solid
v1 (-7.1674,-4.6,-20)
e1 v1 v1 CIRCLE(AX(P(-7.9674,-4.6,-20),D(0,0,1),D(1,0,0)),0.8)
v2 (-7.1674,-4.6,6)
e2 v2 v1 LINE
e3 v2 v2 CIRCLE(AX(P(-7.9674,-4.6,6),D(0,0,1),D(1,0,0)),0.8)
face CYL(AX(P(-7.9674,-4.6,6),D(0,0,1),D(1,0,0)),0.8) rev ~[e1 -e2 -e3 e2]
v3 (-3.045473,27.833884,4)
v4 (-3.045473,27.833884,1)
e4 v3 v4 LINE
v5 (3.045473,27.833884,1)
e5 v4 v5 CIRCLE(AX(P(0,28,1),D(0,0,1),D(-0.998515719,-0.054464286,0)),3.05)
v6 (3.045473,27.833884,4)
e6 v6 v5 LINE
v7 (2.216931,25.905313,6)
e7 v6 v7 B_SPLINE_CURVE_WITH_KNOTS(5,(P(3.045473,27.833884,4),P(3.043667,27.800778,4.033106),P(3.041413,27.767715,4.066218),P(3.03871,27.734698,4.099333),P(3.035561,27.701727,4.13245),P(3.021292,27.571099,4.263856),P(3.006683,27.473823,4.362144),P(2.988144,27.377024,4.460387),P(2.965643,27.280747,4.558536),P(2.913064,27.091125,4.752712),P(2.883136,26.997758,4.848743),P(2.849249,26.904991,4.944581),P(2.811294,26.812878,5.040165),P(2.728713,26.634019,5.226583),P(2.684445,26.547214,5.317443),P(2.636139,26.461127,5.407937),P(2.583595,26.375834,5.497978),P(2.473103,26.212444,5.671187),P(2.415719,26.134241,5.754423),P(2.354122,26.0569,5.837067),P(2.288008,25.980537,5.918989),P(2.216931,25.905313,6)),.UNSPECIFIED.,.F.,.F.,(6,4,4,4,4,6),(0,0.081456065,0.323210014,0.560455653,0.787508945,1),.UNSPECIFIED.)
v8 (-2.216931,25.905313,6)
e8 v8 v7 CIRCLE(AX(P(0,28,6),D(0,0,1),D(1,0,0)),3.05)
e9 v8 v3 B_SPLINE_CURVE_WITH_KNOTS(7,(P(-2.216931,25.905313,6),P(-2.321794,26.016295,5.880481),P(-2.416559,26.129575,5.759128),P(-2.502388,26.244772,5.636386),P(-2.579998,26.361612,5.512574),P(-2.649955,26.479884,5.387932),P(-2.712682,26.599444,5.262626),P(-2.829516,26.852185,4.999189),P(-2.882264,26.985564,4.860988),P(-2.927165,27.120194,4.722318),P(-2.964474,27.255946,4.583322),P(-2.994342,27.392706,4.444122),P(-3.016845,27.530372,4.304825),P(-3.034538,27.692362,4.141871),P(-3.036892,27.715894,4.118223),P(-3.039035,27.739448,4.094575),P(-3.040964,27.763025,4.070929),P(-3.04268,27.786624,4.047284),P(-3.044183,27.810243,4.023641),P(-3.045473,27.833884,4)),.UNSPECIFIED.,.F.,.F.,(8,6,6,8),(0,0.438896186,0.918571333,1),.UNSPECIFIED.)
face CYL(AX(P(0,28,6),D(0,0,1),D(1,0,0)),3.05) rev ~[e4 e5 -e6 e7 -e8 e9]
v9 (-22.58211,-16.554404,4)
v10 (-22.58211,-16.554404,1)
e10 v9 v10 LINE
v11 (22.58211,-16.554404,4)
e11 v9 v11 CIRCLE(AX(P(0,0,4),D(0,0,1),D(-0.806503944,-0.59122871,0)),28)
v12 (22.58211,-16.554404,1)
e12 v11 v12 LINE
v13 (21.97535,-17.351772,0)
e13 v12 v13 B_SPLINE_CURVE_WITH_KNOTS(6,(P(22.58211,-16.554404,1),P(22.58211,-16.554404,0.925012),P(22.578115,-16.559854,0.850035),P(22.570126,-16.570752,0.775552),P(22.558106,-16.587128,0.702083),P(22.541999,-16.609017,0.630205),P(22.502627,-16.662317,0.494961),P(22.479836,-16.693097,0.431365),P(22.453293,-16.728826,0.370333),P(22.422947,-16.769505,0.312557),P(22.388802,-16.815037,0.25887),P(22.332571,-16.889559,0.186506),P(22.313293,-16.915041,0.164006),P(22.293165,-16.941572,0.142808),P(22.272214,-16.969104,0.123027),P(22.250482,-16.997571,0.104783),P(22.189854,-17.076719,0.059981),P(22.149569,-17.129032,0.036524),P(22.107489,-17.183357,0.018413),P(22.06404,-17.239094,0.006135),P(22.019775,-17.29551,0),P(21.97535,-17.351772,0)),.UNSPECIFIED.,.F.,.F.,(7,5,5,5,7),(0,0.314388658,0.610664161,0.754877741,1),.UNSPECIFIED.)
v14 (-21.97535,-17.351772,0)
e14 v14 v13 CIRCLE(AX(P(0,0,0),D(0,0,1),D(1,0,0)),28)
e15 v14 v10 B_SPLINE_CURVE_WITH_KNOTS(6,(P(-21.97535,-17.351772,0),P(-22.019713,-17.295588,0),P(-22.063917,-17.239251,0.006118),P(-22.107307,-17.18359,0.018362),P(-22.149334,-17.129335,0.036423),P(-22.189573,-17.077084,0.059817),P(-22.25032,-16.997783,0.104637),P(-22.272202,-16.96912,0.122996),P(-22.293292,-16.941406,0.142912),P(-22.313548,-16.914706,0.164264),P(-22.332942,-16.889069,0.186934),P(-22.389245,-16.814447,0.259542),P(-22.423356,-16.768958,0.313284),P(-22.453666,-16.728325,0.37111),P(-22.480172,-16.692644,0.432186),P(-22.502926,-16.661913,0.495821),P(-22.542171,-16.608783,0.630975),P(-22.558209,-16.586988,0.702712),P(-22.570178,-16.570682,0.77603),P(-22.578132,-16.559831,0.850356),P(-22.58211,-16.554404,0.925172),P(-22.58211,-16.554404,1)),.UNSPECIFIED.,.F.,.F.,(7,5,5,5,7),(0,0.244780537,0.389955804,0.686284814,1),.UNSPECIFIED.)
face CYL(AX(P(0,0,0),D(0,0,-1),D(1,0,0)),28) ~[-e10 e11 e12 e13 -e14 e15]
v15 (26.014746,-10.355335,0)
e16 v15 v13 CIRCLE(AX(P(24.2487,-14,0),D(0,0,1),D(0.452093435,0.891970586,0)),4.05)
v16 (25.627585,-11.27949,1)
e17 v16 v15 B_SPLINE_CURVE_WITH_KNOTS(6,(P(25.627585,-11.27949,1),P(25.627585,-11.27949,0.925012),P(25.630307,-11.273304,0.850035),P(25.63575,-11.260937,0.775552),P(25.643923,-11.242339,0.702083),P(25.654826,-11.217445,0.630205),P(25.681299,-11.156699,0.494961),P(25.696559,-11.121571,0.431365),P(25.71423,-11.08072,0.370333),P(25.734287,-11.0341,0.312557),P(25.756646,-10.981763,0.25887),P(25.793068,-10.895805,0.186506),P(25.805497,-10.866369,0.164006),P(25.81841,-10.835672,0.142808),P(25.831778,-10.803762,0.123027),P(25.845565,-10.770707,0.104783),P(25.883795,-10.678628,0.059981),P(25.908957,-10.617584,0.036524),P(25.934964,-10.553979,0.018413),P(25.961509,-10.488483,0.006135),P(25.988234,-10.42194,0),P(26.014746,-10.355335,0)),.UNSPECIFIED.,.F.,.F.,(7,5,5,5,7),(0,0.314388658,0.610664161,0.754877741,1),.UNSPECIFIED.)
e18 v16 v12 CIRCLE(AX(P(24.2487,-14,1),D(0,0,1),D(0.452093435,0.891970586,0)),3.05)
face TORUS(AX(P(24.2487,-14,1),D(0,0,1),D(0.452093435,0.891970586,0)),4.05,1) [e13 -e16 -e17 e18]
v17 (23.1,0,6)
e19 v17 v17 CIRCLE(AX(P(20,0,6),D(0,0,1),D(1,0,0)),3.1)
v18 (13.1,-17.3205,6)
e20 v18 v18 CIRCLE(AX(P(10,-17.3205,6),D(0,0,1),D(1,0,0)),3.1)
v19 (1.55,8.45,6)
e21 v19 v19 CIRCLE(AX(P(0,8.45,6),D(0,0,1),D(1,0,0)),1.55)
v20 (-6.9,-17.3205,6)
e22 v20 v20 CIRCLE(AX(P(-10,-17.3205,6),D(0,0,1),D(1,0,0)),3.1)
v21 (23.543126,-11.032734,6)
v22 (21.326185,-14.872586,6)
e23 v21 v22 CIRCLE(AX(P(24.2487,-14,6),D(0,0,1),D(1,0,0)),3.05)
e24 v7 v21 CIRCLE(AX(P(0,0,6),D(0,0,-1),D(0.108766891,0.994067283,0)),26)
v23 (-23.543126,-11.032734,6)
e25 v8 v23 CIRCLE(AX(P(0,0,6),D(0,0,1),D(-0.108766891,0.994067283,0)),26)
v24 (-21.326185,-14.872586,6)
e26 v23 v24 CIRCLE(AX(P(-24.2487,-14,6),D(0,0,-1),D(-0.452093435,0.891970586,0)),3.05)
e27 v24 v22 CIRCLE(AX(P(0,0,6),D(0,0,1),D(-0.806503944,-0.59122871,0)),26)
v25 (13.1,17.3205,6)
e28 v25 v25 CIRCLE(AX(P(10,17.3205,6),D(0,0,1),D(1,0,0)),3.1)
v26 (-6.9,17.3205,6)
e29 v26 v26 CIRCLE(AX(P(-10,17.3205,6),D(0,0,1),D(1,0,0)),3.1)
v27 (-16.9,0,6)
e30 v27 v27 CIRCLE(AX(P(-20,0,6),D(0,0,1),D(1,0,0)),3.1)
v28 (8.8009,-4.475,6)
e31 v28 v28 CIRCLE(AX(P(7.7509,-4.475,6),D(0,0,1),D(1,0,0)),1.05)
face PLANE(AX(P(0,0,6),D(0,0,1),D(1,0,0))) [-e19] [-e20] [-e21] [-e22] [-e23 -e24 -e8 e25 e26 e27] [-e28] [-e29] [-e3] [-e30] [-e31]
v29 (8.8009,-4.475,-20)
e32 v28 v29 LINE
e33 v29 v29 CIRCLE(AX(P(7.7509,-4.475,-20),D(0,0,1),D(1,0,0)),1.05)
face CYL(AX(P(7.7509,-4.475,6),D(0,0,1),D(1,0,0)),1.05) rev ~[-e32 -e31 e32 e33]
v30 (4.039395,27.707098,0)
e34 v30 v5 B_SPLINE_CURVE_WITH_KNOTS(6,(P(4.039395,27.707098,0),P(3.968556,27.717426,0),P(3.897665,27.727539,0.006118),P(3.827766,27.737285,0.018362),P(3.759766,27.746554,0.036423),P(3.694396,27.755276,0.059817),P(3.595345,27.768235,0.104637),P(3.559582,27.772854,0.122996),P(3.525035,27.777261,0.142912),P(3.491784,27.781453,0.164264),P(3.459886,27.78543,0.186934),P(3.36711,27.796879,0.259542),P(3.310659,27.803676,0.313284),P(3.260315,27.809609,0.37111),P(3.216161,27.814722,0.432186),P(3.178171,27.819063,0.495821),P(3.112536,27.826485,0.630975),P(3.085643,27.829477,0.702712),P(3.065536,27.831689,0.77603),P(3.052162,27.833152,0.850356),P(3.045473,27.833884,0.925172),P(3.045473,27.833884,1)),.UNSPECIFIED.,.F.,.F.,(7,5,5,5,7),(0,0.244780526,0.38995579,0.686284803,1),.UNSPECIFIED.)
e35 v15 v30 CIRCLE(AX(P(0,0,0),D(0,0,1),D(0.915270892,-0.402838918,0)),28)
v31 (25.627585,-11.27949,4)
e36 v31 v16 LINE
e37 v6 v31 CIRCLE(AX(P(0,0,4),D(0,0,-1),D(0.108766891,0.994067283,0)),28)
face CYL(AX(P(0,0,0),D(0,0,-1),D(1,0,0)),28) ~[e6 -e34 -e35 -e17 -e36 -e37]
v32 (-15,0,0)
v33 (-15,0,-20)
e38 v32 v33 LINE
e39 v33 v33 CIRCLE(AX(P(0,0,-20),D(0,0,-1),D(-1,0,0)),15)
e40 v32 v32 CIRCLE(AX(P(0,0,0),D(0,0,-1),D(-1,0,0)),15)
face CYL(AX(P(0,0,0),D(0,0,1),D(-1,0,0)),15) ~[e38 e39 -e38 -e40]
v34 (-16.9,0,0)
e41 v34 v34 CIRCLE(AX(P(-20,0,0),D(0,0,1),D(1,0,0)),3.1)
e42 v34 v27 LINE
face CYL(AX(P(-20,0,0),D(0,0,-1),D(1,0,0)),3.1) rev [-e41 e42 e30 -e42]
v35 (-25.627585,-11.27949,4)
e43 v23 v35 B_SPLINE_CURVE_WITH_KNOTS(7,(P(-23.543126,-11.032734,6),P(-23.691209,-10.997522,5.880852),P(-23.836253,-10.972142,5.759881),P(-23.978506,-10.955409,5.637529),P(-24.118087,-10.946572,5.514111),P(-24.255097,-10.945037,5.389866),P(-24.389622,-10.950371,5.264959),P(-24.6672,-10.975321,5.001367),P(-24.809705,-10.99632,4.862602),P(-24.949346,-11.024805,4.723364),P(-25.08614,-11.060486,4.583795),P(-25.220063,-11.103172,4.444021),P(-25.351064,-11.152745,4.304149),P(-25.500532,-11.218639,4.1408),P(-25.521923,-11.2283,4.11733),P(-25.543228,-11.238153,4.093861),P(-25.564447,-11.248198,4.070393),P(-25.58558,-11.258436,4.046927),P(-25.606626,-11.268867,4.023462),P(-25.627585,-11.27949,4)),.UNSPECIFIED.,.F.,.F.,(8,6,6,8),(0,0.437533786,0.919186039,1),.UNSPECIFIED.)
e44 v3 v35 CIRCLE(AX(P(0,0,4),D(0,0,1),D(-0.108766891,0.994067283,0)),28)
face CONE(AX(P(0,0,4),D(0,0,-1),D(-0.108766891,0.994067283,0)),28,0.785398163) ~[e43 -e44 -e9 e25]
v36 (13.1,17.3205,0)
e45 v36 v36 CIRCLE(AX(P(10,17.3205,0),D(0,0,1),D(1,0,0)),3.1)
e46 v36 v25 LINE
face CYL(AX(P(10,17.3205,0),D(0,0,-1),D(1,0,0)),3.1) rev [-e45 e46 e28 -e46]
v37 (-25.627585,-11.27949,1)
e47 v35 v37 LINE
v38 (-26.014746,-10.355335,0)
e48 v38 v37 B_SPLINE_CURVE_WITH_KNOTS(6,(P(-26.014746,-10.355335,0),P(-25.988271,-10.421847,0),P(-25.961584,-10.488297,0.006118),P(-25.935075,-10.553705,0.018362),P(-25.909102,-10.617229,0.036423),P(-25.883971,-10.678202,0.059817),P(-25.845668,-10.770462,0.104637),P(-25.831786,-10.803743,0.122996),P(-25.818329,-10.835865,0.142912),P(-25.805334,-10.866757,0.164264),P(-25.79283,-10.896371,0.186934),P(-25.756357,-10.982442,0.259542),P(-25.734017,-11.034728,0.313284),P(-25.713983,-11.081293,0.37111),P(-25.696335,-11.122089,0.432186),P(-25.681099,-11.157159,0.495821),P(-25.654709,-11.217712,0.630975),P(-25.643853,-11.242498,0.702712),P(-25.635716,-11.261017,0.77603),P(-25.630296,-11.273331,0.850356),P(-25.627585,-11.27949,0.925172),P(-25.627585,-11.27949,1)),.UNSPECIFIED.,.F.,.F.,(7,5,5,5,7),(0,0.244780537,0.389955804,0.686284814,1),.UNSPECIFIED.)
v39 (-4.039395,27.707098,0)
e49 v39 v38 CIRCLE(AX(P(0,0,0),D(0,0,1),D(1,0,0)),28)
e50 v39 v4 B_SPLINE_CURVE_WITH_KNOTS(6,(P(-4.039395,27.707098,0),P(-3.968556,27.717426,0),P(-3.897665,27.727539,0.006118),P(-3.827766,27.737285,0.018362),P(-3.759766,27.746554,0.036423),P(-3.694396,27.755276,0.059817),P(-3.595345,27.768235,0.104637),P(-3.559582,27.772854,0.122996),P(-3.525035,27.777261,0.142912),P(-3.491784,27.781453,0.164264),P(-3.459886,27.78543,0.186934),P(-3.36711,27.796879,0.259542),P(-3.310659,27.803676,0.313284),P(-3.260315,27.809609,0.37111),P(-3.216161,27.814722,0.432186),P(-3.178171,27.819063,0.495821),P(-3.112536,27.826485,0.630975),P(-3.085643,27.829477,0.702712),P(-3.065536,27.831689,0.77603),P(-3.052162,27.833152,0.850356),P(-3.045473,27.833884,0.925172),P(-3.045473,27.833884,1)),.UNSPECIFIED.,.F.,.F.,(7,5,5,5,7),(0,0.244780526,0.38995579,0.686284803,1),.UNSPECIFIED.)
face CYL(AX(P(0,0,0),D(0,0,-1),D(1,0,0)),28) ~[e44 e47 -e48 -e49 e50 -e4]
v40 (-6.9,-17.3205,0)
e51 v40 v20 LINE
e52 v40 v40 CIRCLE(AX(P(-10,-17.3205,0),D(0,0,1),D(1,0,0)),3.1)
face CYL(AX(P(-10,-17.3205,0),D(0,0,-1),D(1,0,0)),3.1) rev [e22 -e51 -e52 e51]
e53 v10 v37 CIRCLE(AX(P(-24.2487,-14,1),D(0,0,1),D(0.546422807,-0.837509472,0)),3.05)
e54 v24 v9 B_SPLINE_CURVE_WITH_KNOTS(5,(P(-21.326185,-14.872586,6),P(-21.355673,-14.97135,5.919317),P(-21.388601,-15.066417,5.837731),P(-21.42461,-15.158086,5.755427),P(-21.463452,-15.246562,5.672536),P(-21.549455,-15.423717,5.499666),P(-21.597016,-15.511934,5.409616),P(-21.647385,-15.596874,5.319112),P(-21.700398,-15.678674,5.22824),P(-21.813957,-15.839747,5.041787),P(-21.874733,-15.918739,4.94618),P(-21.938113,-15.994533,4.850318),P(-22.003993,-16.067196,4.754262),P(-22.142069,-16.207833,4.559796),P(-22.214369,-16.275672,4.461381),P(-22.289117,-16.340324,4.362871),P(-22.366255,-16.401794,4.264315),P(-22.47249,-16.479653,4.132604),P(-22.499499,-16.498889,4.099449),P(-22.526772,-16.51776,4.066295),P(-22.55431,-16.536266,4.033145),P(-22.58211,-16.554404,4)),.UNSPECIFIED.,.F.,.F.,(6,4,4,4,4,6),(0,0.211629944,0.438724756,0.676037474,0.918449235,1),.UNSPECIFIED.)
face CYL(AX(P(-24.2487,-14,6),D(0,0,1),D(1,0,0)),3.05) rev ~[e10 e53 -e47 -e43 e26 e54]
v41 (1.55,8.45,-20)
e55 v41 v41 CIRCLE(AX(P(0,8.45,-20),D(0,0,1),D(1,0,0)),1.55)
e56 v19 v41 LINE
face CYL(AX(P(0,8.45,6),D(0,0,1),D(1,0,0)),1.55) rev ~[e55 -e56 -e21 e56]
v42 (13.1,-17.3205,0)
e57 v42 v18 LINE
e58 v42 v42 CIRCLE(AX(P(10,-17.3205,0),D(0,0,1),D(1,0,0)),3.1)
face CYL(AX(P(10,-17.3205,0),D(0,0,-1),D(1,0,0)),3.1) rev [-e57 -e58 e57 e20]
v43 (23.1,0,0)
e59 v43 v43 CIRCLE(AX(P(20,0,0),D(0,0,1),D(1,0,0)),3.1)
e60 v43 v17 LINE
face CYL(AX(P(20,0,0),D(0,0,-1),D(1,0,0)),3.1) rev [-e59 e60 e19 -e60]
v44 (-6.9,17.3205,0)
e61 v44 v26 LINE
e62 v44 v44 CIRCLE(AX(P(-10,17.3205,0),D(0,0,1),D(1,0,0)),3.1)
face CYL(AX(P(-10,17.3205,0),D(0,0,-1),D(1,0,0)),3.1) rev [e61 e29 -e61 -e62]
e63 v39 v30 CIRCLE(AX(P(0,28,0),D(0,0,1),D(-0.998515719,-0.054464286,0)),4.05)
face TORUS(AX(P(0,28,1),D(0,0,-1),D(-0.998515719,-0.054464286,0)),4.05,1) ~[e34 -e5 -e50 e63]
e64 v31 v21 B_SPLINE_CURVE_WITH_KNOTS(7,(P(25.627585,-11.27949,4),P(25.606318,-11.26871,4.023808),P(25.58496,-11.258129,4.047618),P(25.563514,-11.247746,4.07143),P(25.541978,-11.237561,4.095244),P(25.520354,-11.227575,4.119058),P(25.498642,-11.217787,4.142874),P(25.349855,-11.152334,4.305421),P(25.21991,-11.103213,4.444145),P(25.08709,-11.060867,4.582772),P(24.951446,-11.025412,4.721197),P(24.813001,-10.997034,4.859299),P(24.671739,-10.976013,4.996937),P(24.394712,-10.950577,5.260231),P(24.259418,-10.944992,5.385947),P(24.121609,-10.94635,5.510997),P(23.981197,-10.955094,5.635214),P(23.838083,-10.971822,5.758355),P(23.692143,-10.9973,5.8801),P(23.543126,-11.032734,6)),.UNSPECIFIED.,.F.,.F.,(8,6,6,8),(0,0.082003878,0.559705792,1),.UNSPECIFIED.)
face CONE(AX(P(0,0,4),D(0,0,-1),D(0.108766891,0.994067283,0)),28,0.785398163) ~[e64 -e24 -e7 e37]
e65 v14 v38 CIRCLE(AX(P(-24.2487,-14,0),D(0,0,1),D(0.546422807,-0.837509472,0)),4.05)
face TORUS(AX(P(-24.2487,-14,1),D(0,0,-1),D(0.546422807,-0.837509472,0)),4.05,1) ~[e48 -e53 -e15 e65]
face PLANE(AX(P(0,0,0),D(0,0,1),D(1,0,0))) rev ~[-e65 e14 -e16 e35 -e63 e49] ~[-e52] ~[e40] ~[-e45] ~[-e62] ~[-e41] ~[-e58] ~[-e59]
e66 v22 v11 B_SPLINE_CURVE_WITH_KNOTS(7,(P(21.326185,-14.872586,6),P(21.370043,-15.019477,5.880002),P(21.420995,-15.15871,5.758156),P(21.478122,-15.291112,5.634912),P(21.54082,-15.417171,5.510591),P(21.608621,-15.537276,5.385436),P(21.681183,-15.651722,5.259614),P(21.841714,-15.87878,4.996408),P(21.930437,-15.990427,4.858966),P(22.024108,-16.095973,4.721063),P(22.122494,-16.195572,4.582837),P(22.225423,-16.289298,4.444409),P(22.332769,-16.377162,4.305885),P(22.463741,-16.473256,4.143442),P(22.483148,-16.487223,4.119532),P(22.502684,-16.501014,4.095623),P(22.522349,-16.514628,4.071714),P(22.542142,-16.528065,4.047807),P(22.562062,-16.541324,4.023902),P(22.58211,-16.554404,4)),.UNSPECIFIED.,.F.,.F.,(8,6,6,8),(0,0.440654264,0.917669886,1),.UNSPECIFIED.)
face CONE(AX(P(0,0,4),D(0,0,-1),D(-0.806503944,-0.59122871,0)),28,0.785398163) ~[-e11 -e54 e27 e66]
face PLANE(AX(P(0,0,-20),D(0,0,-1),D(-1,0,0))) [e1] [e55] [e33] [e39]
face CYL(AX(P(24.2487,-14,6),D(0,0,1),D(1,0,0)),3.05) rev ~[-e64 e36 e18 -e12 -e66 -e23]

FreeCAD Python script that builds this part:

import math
import FreeCAD as App
import Part
import Sketcher
from FreeCAD import Vector
Q = App.Units.Quantity


def edges_at(feature, points):
    """Names of the edges that pass closest to the given points."""
    edges = feature.Shape.Edges
    near = lambda p: min(range(len(edges)), key=lambda i: edges[i].distToShape(Part.Vertex(*p))[0])
    return sorted({f"Edge{near(p) + 1}" for p in points})

doc = App.newDocument("Part")
params = doc.addObject("Spreadsheet::Sheet", "Params")
for row, (alias, value) in enumerate([
    ("sketch1_diameter", "56 mm"),
    ("sketch1_diameter2", "6.2 mm"),
    ("pad1_length", "6 mm"),
    ("sketch2_diameter", "30 mm"),
    ("pad2_length", "20 mm"),
    ("sketch3_diameter", "3.1 mm"),
    ("sketch3_diameter2", "2.1 mm"),
    ("sketch3_diameter3", "1.6 mm"),
    ("sketch3_radius", "3.05 mm"),
    ("sketch3_radius2", "28 mm"),
    ("chamfer_size", "2 mm"),
    ("fillet_radius", "1 mm"),
], start=1):
    params.set(f"A{row}", alias)
    params.set(f"B{row}", "=" + value)
    params.setAlias(f"B{row}", alias)

body = doc.addObject("PartDesign::Body", "Body")

# Sketch on XY plane
sketch1 = body.newObject("Sketcher::SketchObject", "Sketch")
sketch1.AttachmentSupport = (doc.getObject("XY_Plane"), [""])
sketch1.MapMode = "FlatFace"
sketch1.addGeometry([
    Part.Circle(Vector(0, 0, 0), Vector(0, 0, 1), 28),  # 0
    Part.Circle(Vector(-10, -17.3205, 0), Vector(0, 0, 1), 3.1),  # 1
    Part.Circle(Vector(10, -17.3205, 0), Vector(0, 0, 1), 3.1),  # 2
    Part.Circle(Vector(-20, 0, 0), Vector(0, 0, 1), 3.1),  # 3
    Part.Circle(Vector(-10, 17.3205, 0), Vector(0, 0, 1), 3.1),  # 4
    Part.Circle(Vector(20, 0, 0), Vector(0, 0, 1), 3.1),  # 5
    Part.Circle(Vector(10, 17.3205, 0), Vector(0, 0, 1), 3.1),  # 6
], False)
sketch1.addConstraint([
    Sketcher.Constraint("Coincident", 0, 3, -1, 1),
    Sketcher.Constraint("Equal", 1, 2),
    Sketcher.Constraint("Equal", 2, 3),
    Sketcher.Constraint("Equal", 3, 4),
    Sketcher.Constraint("Equal", 4, 5),
    Sketcher.Constraint("Equal", 5, 6),
    Sketcher.Constraint("Symmetric", 2, 3, 4, 3, -1, 1),
    Sketcher.Constraint("Symmetric", 3, 3, 5, 3, -1, 1),
    Sketcher.Constraint("Symmetric", 1, 3, 6, 3, -1, 1),
    Sketcher.Constraint("Symmetric", 1, 3, 2, 3, -2),
    Sketcher.Constraint("PointOnObject", 3, 3, -1),
    Sketcher.Constraint("Diameter", 0, Q("56 mm")),
    Sketcher.Constraint("Diameter", 1, Q("6.2 mm")),
    Sketcher.Constraint("DistanceX", 3, 3, -1, 1, Q("20 mm")),
    Sketcher.Constraint("DistanceX", 1, 3, 2, 3, Q("20 mm")),
    Sketcher.Constraint("DistanceY", 1, 3, 4, 3, Q("34.641 mm")),
])
sketch1.setExpression("Constraints[11]", "Params.sketch1_diameter")
sketch1.setExpression("Constraints[12]", "Params.sketch1_diameter2")
pad1 = body.newObject("PartDesign::Pad", "Pad")
pad1.Profile = sketch1
pad1.setExpression("Length", "Params.pad1_length")

# Sketch on XY plane
sketch2 = body.newObject("Sketcher::SketchObject", "Sketch001")
sketch2.AttachmentSupport = (doc.getObject("XY_Plane"), [""])
sketch2.MapMode = "FlatFace"
sketch2.addGeometry(Part.Circle(Vector(0, 0, 0), Vector(0, 0, 1), 15), False)
sketch2.addConstraint([
    Sketcher.Constraint("Coincident", 0, 3, -1, 1),
    Sketcher.Constraint("Diameter", 0, Q("30 mm")),
])
sketch2.setExpression("Constraints[1]", "Params.sketch2_diameter")
pad2 = body.newObject("PartDesign::Pad", "Pad001")
pad2.Profile = sketch2
pad2.setExpression("Length", "Params.pad2_length")
pad2.Reversed = True

# Sketch on XY plane
sketch3 = body.newObject("Sketcher::SketchObject", "Sketch002")
sketch3.AttachmentSupport = (doc.getObject("XY_Plane"), [""])
sketch3.MapMode = "FlatFace"
sketch3.AttachmentOffset = App.Placement(Vector(0, 0, 6), App.Rotation())
sketch3.addGeometry([
    Part.ArcOfCircle(Part.Circle(Vector(0, 28, 0), Vector(0, 0, 1), 3.05), math.radians(-176.877881), math.radians(-3.122119)),  # 0
    Part.ArcOfCircle(Part.Circle(Vector(0, 0, 0), Vector(0, 0, 1), 28), math.radians(83.755763), math.radians(96.244237)),  # 1
    Part.ArcOfCircle(Part.Circle(Vector(0, 0, 0), Vector(0, 0, 1), 28), math.radians(-36.24425), math.radians(-23.755773)),  # 2
    Part.ArcOfCircle(Part.Circle(Vector(24.2487, -14, 0), Vector(0, 0, 1), 3.05), math.radians(63.121924), math.radians(236.878053)),  # 3
    Part.ArcOfCircle(Part.Circle(Vector(-24.2487, -14, 0), Vector(0, 0, 1), 3.05), math.radians(-56.878053), math.radians(116.878076)),  # 4
    Part.ArcOfCircle(Part.Circle(Vector(0, 0, 0), Vector(0, 0, 1), 28), math.radians(-156.244227), math.radians(-143.75575)),  # 5
    Part.Circle(Vector(0, 8.45, 0), Vector(0, 0, 1), 1.55),  # 6
    Part.Circle(Vector(7.7509, -4.475, 0), Vector(0, 0, 1), 1.05),  # 7
    Part.Circle(Vector(-7.9674, -4.6, 0), Vector(0, 0, 1), 0.8),  # 8
], False)
sketch3.addConstraint([
    Sketcher.Constraint("Coincident", 0, 1, 1, 2),
    Sketcher.Constraint("Coincident", 1, 1, 0, 2),
    Sketcher.Constraint("Coincident", 2, 1, 3, 2),
    Sketcher.Constraint("Coincident", 3, 1, 2, 2),
    Sketcher.Constraint("Coincident", 4, 1, 5, 2),
    Sketcher.Constraint("Coincident", 5, 1, 4, 2),
    Sketcher.Constraint("Coincident", 1, 3, -1, 1),
    Sketcher.Constraint("Coincident", 2, 3, -1, 1),
    Sketcher.Constraint("Coincident", 5, 3, -1, 1),
    Sketcher.Constraint("Equal", 1, 2),
    Sketcher.Constraint("Equal", 0, 3),
    Sketcher.Constraint("Equal", 3, 4),
    Sketcher.Constraint("Equal", 2, 5),
    Sketcher.Constraint("Symmetric", 3, 3, 4, 3, -2),
    Sketcher.Constraint("PointOnObject", 0, 3, -2),
    Sketcher.Constraint("PointOnObject", 6, 3, -2),
    Sketcher.Constraint("Diameter", 6, Q("3.1 mm")),
    Sketcher.Constraint("Diameter", 7, Q("2.1 mm")),
    Sketcher.Constraint("Diameter", 8, Q("1.6 mm")),
    Sketcher.Constraint("Radius", 0, Q("3.05 mm")),
    Sketcher.Constraint("Radius", 1, Q("28 mm")),
    Sketcher.Constraint("DistanceY", -1, 1, 0, 3, Q("28 mm")),
    Sketcher.Constraint("DistanceY", 3, 3, -1, 1, Q("14 mm")),
    Sketcher.Constraint("DistanceY", 8, 3, -1, 1, Q("4.6 mm")),
    Sketcher.Constraint("DistanceY", -1, 1, 6, 3, Q("8.45 mm")),
    Sketcher.Constraint("DistanceX", -1, 1, 7, 3, Q("7.751 mm")),
    Sketcher.Constraint("DistanceY", 7, 3, -1, 1, Q("4.475 mm")),
    Sketcher.Constraint("DistanceX", -1, 1, 2, 1, Q("22.582 mm")),
    Sketcher.Constraint("DistanceX", 8, 3, -1, 1, Q("7.9674 mm")),
])
sketch3.setExpression("Constraints[16]", "Params.sketch3_diameter")
sketch3.setExpression("Constraints[17]", "Params.sketch3_diameter2")
sketch3.setExpression("Constraints[18]", "Params.sketch3_diameter3")
sketch3.setExpression("Constraints[19]", "Params.sketch3_radius")
sketch3.setExpression("Constraints[20]", "Params.sketch3_radius2")
pocket1 = body.newObject("PartDesign::Pocket", "Pocket")
pocket1.Profile = sketch3
pocket1.Type = "ThroughAll"
doc.recompute()

chamfer = body.newObject("PartDesign::Chamfer", "Chamfer")
chamfer.Base = (pocket1, edges_at(pocket1, [(-24.249, 14, 6), (0, -28, 6), (24.249, 14, 6)]))
chamfer.setExpression("Size", "Params.chamfer_size")
doc.recompute()

fillet = body.newObject("PartDesign::Fillet", "Fillet")
fillet.Base = (chamfer, edges_at(chamfer, [(21.607, -12.475, 0), (-21.607, -12.475, 0), (0, 24.95, 0)]))
fillet.setExpression("Radius", "Params.fillet_radius")

doc.recompute()
